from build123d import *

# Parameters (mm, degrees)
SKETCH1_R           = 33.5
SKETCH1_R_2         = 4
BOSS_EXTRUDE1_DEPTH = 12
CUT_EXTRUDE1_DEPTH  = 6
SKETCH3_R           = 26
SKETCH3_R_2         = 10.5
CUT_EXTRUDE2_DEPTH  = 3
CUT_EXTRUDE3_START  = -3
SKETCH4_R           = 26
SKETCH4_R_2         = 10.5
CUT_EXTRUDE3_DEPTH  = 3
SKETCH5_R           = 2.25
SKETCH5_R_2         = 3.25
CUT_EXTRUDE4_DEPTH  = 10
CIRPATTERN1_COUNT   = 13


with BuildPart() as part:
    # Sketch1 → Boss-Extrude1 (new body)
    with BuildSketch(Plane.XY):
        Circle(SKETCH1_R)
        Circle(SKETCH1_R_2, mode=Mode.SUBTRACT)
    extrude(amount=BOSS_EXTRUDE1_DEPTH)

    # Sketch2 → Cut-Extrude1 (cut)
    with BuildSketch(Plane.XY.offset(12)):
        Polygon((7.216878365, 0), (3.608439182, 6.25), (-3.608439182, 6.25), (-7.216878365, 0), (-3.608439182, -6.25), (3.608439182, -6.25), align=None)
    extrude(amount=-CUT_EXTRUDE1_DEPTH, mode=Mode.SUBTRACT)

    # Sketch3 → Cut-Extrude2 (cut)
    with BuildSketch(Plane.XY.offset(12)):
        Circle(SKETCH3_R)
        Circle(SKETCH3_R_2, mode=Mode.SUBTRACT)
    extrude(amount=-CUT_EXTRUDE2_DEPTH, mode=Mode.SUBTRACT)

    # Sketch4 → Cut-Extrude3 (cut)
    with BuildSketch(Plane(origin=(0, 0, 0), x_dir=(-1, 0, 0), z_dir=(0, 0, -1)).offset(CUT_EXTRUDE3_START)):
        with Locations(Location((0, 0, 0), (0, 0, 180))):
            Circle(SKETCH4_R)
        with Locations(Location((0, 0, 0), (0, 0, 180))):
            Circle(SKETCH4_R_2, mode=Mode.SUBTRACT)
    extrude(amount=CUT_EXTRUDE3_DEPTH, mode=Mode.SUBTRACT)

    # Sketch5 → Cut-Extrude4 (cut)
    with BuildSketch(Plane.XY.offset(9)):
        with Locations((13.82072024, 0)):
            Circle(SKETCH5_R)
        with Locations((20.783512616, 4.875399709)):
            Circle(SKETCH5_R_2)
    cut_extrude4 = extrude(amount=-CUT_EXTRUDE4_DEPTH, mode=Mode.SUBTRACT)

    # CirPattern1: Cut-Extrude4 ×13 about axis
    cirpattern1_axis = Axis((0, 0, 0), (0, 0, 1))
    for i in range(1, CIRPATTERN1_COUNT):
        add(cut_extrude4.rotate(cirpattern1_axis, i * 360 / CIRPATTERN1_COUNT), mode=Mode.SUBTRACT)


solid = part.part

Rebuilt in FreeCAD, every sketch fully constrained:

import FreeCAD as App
import Part
import Sketcher
from FreeCAD import Vector
Q = App.Units.Quantity

doc = App.newDocument("Part")
body = doc.addObject("PartDesign::Body", "Body")

# Sketch on XY plane
sketch1 = doc.addObject("Sketcher::SketchObject", "Sketch")
body.addObject(sketch1)
sketch1.AttachmentSupport = (doc.XY_Plane, [""])
sketch1.MapMode = "FlatFace"
sketch1.addGeometry([
    Part.Circle(Vector(0, 0, 0), Vector(0, 0, 1), 33.5),
    Part.Circle(Vector(0, 0, 0), Vector(0, 0, 1), 4),
], False)
sketch1.addConstraint([
    Sketcher.Constraint("Coincident", 0, 3, -1, 1),
    Sketcher.Constraint("Coincident", 1, 3, -1, 1),
    Sketcher.Constraint("Diameter", 0, 67.0),
    Sketcher.Constraint("Diameter", 1, 8.0),
])
pad1 = doc.addObject("PartDesign::Pad", "Pad")
body.addObject(pad1)
pad1.Profile = sketch1
pad1.Length = 12

# Sketch on XY plane
sketch2 = doc.addObject("Sketcher::SketchObject", "Sketch001")
body.addObject(sketch2)
sketch2.AttachmentSupport = (doc.XY_Plane, [""])
sketch2.MapMode = "FlatFace"
sketch2.AttachmentOffset = App.Placement(Vector(0, 0, 12), App.Rotation())
sketch2.addGeometry([
    Part.LineSegment(Vector(7, 0, 0), Vector(4, 6, 0)),  # 0
    Part.LineSegment(Vector(4, 6, 0), Vector(-4, 6, 0)),  # 1
    Part.LineSegment(Vector(-4, 6, 0), Vector(-7, 0, 0)),  # 2
    Part.LineSegment(Vector(-7, 0, 0), Vector(-4, -6, 0)),  # 3
    Part.LineSegment(Vector(-4, -6, 0), Vector(4, -6, 0)),  # 4
    Part.LineSegment(Vector(4, -6, 0), Vector(7, 0, 0)),  # 5
], False)
sketch2.addConstraint([
    Sketcher.Constraint("Coincident", 0, 2, 1, 1),
    Sketcher.Constraint("Coincident", 1, 2, 2, 1),
    Sketcher.Constraint("Coincident", 2, 2, 3, 1),
    Sketcher.Constraint("Coincident", 3, 2, 4, 1),
    Sketcher.Constraint("Coincident", 4, 2, 5, 1),
    Sketcher.Constraint("Coincident", 5, 2, 0, 1),
    Sketcher.Constraint("Horizontal", 1),
    Sketcher.Constraint("Horizontal", 4),
    Sketcher.Constraint("Symmetric", 0, 2, 3, 2, -1, 1),
    Sketcher.Constraint("Symmetric", 2, 2, 5, 2, -1, 1),
    Sketcher.Constraint("PointOnObject", 2, 2, -1),
    Sketcher.Constraint("Parallel", 2, 5),
    Sketcher.Constraint("Vertical", 1, 2, 3, 2),
    Sketcher.Constraint("Angle", 0, Q("120 deg")),
    Sketcher.Constraint("DistanceY", 3, 2, 1, 2, 12.5),
    Sketcher.Constraint("DistanceX", 1, 2, 1, 1, 7.216878),
])
pocket1 = doc.addObject("PartDesign::Pocket", "Pocket")
body.addObject(pocket1)
pocket1.Profile = sketch2
pocket1.Length = 6

# Sketch on XY plane
sketch3 = doc.addObject("Sketcher::SketchObject", "Sketch002")
body.addObject(sketch3)
sketch3.AttachmentSupport = (doc.XY_Plane, [""])
sketch3.MapMode = "FlatFace"
sketch3.AttachmentOffset = App.Placement(Vector(0, 0, 12), App.Rotation())
sketch3.addGeometry([
    Part.Circle(Vector(0, 0, 0), Vector(0, 0, 1), 26),
    Part.Circle(Vector(0, 0, 0), Vector(0, 0, 1), 10),
], False)
sketch3.addConstraint([
    Sketcher.Constraint("Coincident", 0, 3, -1, 1),
    Sketcher.Constraint("Coincident", 1, 3, -1, 1),
    Sketcher.Constraint("Diameter", 0, 52.0),
    Sketcher.Constraint("Diameter", 1, 21.0),
])
pocket2 = doc.addObject("PartDesign::Pocket", "Pocket001")
body.addObject(pocket2)
pocket2.Profile = sketch3
pocket2.Length = 3

# Sketch on XY plane
sketch4 = doc.addObject("Sketcher::SketchObject", "Sketch003")
body.addObject(sketch4)
sketch4.AttachmentSupport = (doc.XY_Plane, [""])
sketch4.MapMode = "FlatFace"
sketch4.AttachmentOffset = App.Placement(Vector(0, 0, 3), App.Rotation())
sketch4.addGeometry([
    Part.Circle(Vector(0, 0, 0), Vector(0, 0, 1), 26),
    Part.Circle(Vector(0, 0, 0), Vector(0, 0, 1), 10),
], False)
sketch4.addConstraint([
    Sketcher.Constraint("Coincident", 0, 3, -1, 1),
    Sketcher.Constraint("Coincident", 1, 3, -1, 1),
    Sketcher.Constraint("Diameter", 0, 52.0),
    Sketcher.Constraint("Diameter", 1, 21.0),
])
pocket3 = doc.addObject("PartDesign::Pocket", "Pocket002")
body.addObject(pocket3)
pocket3.Profile = sketch4
pocket3.Length = 3

# Sketch on XY plane
sketch5 = doc.addObject("Sketcher::SketchObject", "Sketch004")
body.addObject(sketch5)
sketch5.AttachmentSupport = (doc.XY_Plane, [""])
sketch5.MapMode = "FlatFace"
sketch5.AttachmentOffset = App.Placement(Vector(0, 0, 9), App.Rotation())
sketch5.addGeometry([
    Part.Circle(Vector(13.8, 0, 0), Vector(0, 0, 1), 2.2),
    Part.Circle(Vector(20.8, 4.9, 0), Vector(0, 0, 1), 3.2),
], False)
sketch5.addConstraint([
    Sketcher.Constraint("PointOnObject", 0, 3, -1),
    Sketcher.Constraint("Diameter", 0, 4.5),
    Sketcher.Constraint("Diameter", 1, 6.5),
    Sketcher.Constraint("DistanceY", -1, 1, 1, 3, 4.8754),
    Sketcher.Constraint("DistanceX", -1, 1, 0, 3, 13.82072),
    Sketcher.Constraint("DistanceX", -1, 1, 1, 3, 20.783513),
])
pocket4 = doc.addObject("PartDesign::Pocket", "Pocket003")
body.addObject(pocket4)
pocket4.Profile = sketch5
pocket4.Length = 10
doc.recompute()

polarpattern = doc.addObject("PartDesign::PolarPattern", "PolarPattern")
body.addObject(polarpattern)
polarpattern.Originals = [pocket4]
polarpattern.Axis = (doc.Z_Axis, [""])
polarpattern.Angle = 360
polarpattern.Occurrences = 13
body.Tip = polarpattern

doc.recompute()
